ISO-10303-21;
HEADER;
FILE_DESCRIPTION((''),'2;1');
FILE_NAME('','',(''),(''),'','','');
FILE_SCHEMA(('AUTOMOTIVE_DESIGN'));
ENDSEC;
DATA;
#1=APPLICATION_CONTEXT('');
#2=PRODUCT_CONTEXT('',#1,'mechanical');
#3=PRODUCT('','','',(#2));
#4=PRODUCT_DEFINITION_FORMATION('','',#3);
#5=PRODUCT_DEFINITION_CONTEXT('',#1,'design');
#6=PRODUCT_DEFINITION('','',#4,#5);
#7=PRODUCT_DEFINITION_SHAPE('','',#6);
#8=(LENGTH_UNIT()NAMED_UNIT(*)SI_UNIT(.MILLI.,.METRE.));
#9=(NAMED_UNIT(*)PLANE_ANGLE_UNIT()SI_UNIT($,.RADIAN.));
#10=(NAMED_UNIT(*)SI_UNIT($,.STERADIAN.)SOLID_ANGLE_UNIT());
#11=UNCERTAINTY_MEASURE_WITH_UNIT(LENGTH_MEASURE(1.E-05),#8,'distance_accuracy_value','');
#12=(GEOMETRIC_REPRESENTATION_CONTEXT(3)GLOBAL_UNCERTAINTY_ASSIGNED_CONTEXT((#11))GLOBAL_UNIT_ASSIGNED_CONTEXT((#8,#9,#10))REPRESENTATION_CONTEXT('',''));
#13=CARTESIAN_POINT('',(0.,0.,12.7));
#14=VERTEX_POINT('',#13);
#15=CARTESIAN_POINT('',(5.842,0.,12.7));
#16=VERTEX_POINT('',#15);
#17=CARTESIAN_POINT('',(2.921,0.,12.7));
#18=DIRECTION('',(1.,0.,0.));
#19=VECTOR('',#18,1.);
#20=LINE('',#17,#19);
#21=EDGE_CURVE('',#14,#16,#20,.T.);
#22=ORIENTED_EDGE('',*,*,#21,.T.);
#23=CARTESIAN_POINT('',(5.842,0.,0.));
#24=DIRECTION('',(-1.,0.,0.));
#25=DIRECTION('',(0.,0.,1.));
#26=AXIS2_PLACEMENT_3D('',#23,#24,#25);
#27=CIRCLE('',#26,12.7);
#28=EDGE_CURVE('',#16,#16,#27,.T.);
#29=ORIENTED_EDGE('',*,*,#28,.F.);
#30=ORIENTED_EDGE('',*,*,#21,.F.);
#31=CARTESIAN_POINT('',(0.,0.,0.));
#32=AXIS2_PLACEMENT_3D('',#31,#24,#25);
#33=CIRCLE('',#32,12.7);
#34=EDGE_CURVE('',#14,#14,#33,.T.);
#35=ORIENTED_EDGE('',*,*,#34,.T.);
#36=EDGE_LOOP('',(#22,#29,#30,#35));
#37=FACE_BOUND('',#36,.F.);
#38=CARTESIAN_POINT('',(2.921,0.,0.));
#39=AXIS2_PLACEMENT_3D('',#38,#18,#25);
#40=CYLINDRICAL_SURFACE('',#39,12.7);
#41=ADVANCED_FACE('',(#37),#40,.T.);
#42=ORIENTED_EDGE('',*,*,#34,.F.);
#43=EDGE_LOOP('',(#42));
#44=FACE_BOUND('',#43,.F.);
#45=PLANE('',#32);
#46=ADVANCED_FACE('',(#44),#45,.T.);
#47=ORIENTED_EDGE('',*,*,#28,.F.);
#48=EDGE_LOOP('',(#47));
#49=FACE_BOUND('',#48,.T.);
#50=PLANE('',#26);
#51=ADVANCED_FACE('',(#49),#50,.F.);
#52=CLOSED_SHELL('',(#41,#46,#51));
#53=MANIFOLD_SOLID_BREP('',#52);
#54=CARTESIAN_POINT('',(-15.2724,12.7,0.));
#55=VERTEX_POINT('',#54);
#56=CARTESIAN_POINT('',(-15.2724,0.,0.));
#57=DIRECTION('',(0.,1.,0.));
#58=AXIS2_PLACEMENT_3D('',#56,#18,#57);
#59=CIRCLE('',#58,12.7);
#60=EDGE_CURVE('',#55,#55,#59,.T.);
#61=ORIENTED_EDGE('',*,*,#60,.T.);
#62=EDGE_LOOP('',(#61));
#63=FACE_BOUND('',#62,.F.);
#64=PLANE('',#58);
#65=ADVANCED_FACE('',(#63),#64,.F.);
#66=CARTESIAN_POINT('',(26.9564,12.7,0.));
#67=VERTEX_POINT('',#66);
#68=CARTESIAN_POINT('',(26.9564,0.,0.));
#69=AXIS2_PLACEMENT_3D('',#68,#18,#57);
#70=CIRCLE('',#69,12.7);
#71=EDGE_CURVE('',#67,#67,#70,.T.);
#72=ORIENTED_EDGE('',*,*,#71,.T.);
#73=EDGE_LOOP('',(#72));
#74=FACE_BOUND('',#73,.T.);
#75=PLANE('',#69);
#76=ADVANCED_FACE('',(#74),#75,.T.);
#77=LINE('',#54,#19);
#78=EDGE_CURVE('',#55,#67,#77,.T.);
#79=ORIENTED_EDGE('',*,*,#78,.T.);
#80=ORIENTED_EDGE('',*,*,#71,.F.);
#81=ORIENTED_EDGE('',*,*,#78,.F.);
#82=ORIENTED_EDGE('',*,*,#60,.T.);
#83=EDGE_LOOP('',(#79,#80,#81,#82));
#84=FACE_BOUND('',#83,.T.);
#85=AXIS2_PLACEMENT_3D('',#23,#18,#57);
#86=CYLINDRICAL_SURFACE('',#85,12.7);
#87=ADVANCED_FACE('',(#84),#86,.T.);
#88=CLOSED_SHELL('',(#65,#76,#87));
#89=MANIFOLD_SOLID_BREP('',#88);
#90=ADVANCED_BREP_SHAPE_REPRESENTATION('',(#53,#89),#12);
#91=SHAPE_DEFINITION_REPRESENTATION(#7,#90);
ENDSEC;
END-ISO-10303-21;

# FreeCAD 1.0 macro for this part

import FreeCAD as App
import Part
import Sketcher
Q = App.Units.Quantity


def add_polygon(sketch, points):
    """Adds a closed chain of lines whose ends are joined by coincident constraints."""
    first, n = sketch.GeometryCount, len(points)
    for a, b in zip(points, points[1:] + points[:1]):
        sketch.addGeometry(Part.LineSegment(App.Vector(*a, 0), App.Vector(*b, 0)), False)
    for i in range(n):
        sketch.addConstraint(Sketcher.Constraint("Coincident", first + i, 2, first + (i + 1) % n, 1))

doc = App.newDocument("Part")
body = doc.addObject("PartDesign::Body", "Body")

# Sketch on XZ plane
sketch1 = doc.addObject("Sketcher::SketchObject", "Sketch")
body.addObject(sketch1)
sketch1.AttachmentSupport = (doc.XZ_Plane, [""])
sketch1.MapMode = "FlatFace"
add_polygon(sketch1, [(0, 12.7), (0, 0), (5.842, 0), (5.842, 12.7)])  # lines 0-3
sketch1.addConstraint([
    Sketcher.Constraint("Vertical", 0),
    Sketcher.Constraint("Horizontal", 1),
    Sketcher.Constraint("Vertical", 2),
    Sketcher.Constraint("Horizontal", 3),
    Sketcher.Constraint("Coincident", 0, 2, -1, 1),
    Sketcher.Constraint("DistanceY", 0, 2, 0, 1, Q("0.5 in")),
    Sketcher.Constraint("DistanceX", 1, 1, 1, 2, Q("0.23 in")),
])
revolution = doc.addObject("PartDesign::Revolution", "Revolution")
body.addObject(revolution)
revolution.Profile = sketch1
revolution.ReferenceAxis = (sketch1, ["H_Axis"])
revolution.Angle = 360
body2 = doc.addObject("PartDesign::Body", "Body001")

# Sketch on YZ plane
sketch2 = doc.addObject("Sketcher::SketchObject", "Sketch001")
body2.addObject(sketch2)
sketch2.AttachmentSupport = (doc.getObject("YZ_Plane001"), [""])
sketch2.MapMode = "FlatFace"
sketch2.AttachmentOffset = App.Placement(App.Vector(0, 0, 0.23 * 25.4), App.Rotation())
sketch2.addGeometry(Part.Circle(App.Vector(0, 0, 0), App.Vector(0, 0, 1), 12.7), False)
sketch2.addConstraint([
    Sketcher.Constraint("Coincident", 0, 3, -1, 1),
    Sketcher.Constraint("Diameter", 0, Q("1 in")),
])
pad1 = doc.addObject("PartDesign::Pad", "Pad")
body2.addObject(pad1)
pad1.Profile = sketch2
pad1.Length = 42.2288
pad1.Midplane = True

doc.recompute()
